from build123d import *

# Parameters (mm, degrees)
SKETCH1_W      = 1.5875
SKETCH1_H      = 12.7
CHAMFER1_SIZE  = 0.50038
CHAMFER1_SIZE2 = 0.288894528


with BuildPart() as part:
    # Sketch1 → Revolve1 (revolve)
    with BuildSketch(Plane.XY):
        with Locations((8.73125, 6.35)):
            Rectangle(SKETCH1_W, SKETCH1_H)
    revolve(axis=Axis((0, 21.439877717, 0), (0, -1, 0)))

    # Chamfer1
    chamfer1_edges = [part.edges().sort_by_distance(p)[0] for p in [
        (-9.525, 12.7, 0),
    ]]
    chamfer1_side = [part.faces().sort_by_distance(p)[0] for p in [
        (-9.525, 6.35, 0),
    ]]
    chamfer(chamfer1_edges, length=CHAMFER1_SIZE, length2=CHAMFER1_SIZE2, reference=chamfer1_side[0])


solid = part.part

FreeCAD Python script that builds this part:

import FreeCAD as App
import Part
import Sketcher
Q = App.Units.Quantity


def edges_at(feature, points):
    """Names of the edges that pass closest to the given points."""
    edges = feature.Shape.Edges
    near = lambda p: min(range(len(edges)), key=lambda i: edges[i].distToShape(Part.Vertex(*p))[0])
    return sorted({f"Edge{near(p) + 1}" for p in points})


def add_polygon(sketch, points):
    """Adds a closed chain of lines whose ends are joined by coincident constraints."""
    first, n = sketch.GeometryCount, len(points)
    for a, b in zip(points, points[1:] + points[:1]):
        sketch.addGeometry(Part.LineSegment(App.Vector(*a, 0), App.Vector(*b, 0)), False)
    for i in range(n):
        sketch.addConstraint(Sketcher.Constraint("Coincident", first + i, 2, first + (i + 1) % n, 1))

doc = App.newDocument("Part")
body = doc.addObject("PartDesign::Body", "Body")

# Sketch on XY plane
sketch1 = body.newObject("Sketcher::SketchObject", "Sketch")
sketch1.AttachmentSupport = (doc.getObject("XY_Plane"), [""])
sketch1.MapMode = "FlatFace"
add_polygon(sketch1, [(7.9, 12.7), (7.9, 0), (9.5, 0), (9.5, 12.7)])  # lines 0-3
sketch1.addConstraint([
    Sketcher.Constraint("Vertical", 0),
    Sketcher.Constraint("Horizontal", 1),
    Sketcher.Constraint("Vertical", 2),
    Sketcher.Constraint("Horizontal", 3),
    Sketcher.Constraint("PointOnObject", 0, 2, -1),
    Sketcher.Constraint("DistanceY", 0, 2, 0, 1, Q("0.5 in")),
    Sketcher.Constraint("DistanceX", 1, 1, 1, 2, Q("0.0625 in")),
    Sketcher.Constraint("DistanceX", -1, 1, 0, 2, Q("0.3125 in")),
])
revolution = body.newObject("PartDesign::Revolution", "Revolution")
revolution.Profile = sketch1
revolution.ReferenceAxis = (sketch1, ["V_Axis"])
revolution.Angle = 360
doc.recompute()

chamfer = body.newObject("PartDesign::Chamfer", "Chamfer")
chamfer.Base = (revolution, edges_at(revolution, [(-9.525, 12.7, 0)]))
chamfer.ChamferType = "Two distances"
chamfer.Size = Q("0.0197 in")
chamfer.Size2 = 0.288895

doc.recompute()
